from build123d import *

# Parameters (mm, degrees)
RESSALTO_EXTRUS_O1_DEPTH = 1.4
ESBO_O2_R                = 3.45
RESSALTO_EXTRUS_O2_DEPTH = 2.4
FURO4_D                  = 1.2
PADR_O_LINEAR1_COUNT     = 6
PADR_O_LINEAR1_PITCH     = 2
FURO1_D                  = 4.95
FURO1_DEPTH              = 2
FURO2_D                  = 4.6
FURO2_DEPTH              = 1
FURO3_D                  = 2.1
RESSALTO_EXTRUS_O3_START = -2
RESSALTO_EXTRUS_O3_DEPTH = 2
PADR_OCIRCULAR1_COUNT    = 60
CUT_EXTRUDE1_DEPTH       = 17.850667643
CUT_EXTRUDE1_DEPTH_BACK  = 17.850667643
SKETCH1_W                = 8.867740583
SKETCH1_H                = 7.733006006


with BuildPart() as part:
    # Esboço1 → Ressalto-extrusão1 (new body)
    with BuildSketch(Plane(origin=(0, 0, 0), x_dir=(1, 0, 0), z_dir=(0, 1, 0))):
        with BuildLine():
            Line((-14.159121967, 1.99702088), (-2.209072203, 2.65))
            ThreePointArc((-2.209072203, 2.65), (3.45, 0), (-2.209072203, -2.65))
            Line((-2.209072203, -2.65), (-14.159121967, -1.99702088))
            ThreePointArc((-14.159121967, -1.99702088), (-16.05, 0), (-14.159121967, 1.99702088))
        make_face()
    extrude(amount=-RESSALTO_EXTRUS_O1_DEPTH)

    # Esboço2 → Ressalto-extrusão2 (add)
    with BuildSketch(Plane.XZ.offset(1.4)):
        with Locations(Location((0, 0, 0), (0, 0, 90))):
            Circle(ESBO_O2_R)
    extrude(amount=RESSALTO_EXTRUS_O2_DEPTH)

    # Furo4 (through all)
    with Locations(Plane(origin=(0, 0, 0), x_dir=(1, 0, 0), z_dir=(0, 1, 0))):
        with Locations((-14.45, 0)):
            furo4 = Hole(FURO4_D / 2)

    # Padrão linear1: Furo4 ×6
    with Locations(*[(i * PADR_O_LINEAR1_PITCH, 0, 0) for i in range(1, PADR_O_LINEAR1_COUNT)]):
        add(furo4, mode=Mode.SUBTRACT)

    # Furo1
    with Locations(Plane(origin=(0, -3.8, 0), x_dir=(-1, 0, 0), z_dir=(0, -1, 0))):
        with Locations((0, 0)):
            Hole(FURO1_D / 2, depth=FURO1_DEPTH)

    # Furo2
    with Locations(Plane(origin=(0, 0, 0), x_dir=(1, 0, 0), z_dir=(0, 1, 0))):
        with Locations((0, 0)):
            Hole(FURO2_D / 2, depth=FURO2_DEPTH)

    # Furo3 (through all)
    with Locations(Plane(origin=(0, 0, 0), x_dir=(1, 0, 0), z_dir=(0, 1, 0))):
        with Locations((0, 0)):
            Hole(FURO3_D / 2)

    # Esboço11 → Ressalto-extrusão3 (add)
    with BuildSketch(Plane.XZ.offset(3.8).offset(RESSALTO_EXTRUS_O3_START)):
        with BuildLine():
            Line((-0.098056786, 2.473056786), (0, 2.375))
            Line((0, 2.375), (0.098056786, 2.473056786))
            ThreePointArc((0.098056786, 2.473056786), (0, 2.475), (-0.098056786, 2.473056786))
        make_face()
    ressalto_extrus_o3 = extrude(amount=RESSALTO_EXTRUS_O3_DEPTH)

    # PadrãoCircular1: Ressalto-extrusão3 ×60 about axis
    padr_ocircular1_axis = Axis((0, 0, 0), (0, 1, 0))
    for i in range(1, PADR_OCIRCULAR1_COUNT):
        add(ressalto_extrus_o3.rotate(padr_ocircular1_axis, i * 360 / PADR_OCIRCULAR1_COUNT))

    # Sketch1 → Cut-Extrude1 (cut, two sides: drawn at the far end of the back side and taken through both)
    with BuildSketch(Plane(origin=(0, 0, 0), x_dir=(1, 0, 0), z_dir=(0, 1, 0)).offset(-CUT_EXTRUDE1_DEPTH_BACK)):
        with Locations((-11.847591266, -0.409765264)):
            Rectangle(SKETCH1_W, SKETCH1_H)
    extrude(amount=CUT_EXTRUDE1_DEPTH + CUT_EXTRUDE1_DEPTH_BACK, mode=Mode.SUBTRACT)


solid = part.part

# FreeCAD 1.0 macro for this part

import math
import FreeCAD as App
import Part
import Sketcher

V = App.Vector

doc = App.newDocument("Part")
body = doc.addObject("PartDesign::Body", "Body")

# Sketch on XZ plane
sketch1 = body.newObject("Sketcher::SketchObject", "Sketch")
sketch1.AttachmentSupport = (doc.getObject("XZ_Plane"), [""])
sketch1.MapMode = "FlatFace"
sketch1.addGeometry([
    Part.LineSegment(V(-2.2, -2.6, 0), V(-14.2, -2, 0)),
    Part.ArcOfCircle(Part.Circle(V(-14.1, 0, 0), V(0, 0, 1), 2), math.radians(93), math.radians(267)),
    Part.LineSegment(V(-14.2, 2, 0), V(-2.2, 2.6, 0)),
    Part.ArcOfCircle(Part.Circle(V(0, 0, 0), V(0, 0, 1), 3.5), math.radians(-130), math.radians(130)),
], False)
sketch1.addConstraint([
    Sketcher.Constraint("Tangent", 0, 2, 1, 2),
    Sketcher.Constraint("Tangent", 1, 1, 2, 1),
    Sketcher.Constraint("Coincident", 2, 2, 3, 2),
    Sketcher.Constraint("Coincident", 3, 1, 0, 1),
    Sketcher.Constraint("Coincident", 3, 3, -1, 1),
    Sketcher.Constraint("Symmetric", 0, 2, 1, 1, -1),
    Sketcher.Constraint("Radius", 1, 2.0),
    Sketcher.Constraint("Radius", 3, 3.45),
    Sketcher.Constraint("DistanceY", 3, 1, 2, 2, 5.3),
    Sketcher.Constraint("DistanceX", 1, 3, -1, 1, 14.05),
])
pad1 = body.newObject("PartDesign::Pad", "Pad")
pad1.Profile = sketch1
pad1.Length = 1.4

# Sketch on XZ plane
sketch2 = body.newObject("Sketcher::SketchObject", "Sketch001")
sketch2.AttachmentSupport = (doc.getObject("XZ_Plane"), [""])
sketch2.MapMode = "FlatFace"
sketch2.AttachmentOffset = App.Placement(V(0, 0, 1.4), App.Rotation())
sketch2.addGeometry(Part.Circle(V(0, 0, 0), V(0, 0, 1), 3.5), False)
sketch2.addConstraint([
    Sketcher.Constraint("Coincident", 0, 3, -1, 1),
    Sketcher.Constraint("Diameter", 0, 6.9),
])
pad2 = body.newObject("PartDesign::Pad", "Pad001")
pad2.Profile = sketch2
pad2.Length = 2.4

# Sketch on XZ plane
sketch3 = body.newObject("Sketcher::SketchObject", "Sketch002")
sketch3.AttachmentSupport = (doc.getObject("XZ_Plane"), [""])
sketch3.MapMode = "FlatFace"
sketch3.addGeometry(Part.Circle(V(-14.4, 0, 0), V(0, 0, 1), 0.6), False)
sketch3.addConstraint([
    Sketcher.Constraint("PointOnObject", 0, 3, -1),
    Sketcher.Constraint("Diameter", 0, 1.2),
    Sketcher.Constraint("DistanceX", 0, 3, -1, 1, 14.45),
])
doc.recompute()
hole = body.newObject("PartDesign::Hole", "Hole")
hole.Profile = sketch3
hole.ThreadType = "None"
hole.Diameter = 1.2
hole.DepthType = "ThroughAll"
hole.Reversed = True
doc.recompute()

linearpattern = body.newObject("PartDesign::LinearPattern", "LinearPattern")
linearpattern.Originals = [hole]
linearpattern.Direction = (doc.getObject("X_Axis"), [""])
linearpattern.Mode = "offset"
linearpattern.Offset = 2
linearpattern.Occurrences = 6
body.Tip = linearpattern

# Sketch on XZ plane
sketch4 = body.newObject("Sketcher::SketchObject", "Sketch003")
sketch4.AttachmentSupport = (doc.getObject("XZ_Plane"), [""])
sketch4.MapMode = "FlatFace"
sketch4.AttachmentOffset = App.Placement(V(0, 0, 3.8), App.Rotation())
sketch4.addGeometry(Part.Circle(V(0, 0, 0), V(0, 0, 1), 2.5), False)
sketch4.addConstraint([
    Sketcher.Constraint("Coincident", 0, 3, -1, 1),
    Sketcher.Constraint("Diameter", 0, 4.95),
])
doc.recompute()
hole2 = body.newObject("PartDesign::Hole", "Hole001")
hole2.Profile = sketch4
hole2.ThreadType = "None"
hole2.Diameter = 4.95
hole2.DepthType = "Dimension"
hole2.Depth = 2
hole2.DrillPoint = "Flat"

# Sketch on XZ plane
sketch5 = body.newObject("Sketcher::SketchObject", "Sketch004")
sketch5.AttachmentSupport = (doc.getObject("XZ_Plane"), [""])
sketch5.MapMode = "FlatFace"
sketch5.addGeometry(Part.Circle(V(0, 0, 0), V(0, 0, 1), 2.3), False)
sketch5.addConstraint([
    Sketcher.Constraint("Coincident", 0, 3, -1, 1),
    Sketcher.Constraint("Diameter", 0, 4.6),
])
doc.recompute()
hole3 = body.newObject("PartDesign::Hole", "Hole002")
hole3.Profile = sketch5
hole3.ThreadType = "None"
hole3.Diameter = 4.6
hole3.DepthType = "Dimension"
hole3.Depth = 1
hole3.DrillPoint = "Flat"
hole3.Reversed = True

# Sketch on XZ plane
sketch6 = body.newObject("Sketcher::SketchObject", "Sketch005")
sketch6.AttachmentSupport = (doc.getObject("XZ_Plane"), [""])
sketch6.MapMode = "FlatFace"
sketch6.addGeometry(Part.Circle(V(0, 0, 0), V(0, 0, 1), 1.1), False)
sketch6.addConstraint([
    Sketcher.Constraint("Coincident", 0, 3, -1, 1),
    Sketcher.Constraint("Diameter", 0, 2.1),
])
doc.recompute()
hole4 = body.newObject("PartDesign::Hole", "Hole003")
hole4.Profile = sketch6
hole4.ThreadType = "None"
hole4.Diameter = 2.1
hole4.DepthType = "ThroughAll"
hole4.Reversed = True

# Sketch on XZ plane
sketch7 = body.newObject("Sketcher::SketchObject", "Sketch006")
sketch7.AttachmentSupport = (doc.getObject("XZ_Plane"), [""])
sketch7.MapMode = "FlatFace"
sketch7.AttachmentOffset = App.Placement(V(0, 0, 1.8), App.Rotation())
sketch7.addGeometry([
    Part.LineSegment(V(-0.1, 2.47, 0), V(0, 2.38, 0)),
    Part.LineSegment(V(0, 2.38, 0), V(0.1, 2.47, 0)),
    Part.ArcOfCircle(Part.Circle(V(0, 0, 0), V(0, 0, 1), 2.48), math.radians(87.73), math.radians(92.27)),
], False)
sketch7.addConstraint([
    Sketcher.Constraint("Coincident", 0, 2, 1, 1),
    Sketcher.Constraint("Coincident", 1, 2, 2, 1),
    Sketcher.Constraint("Coincident", 2, 2, 0, 1),
    Sketcher.Constraint("Coincident", 2, 3, -1, 1),
    Sketcher.Constraint("PointOnObject", 0, 2, -2),
    Sketcher.Constraint("Perpendicular", 0, 1),
    Sketcher.Constraint("Horizontal", 1, 2, 2, 2),
    Sketcher.Constraint("Radius", 2, 2.475),
    Sketcher.Constraint("DistanceY", -1, 1, 0, 2, 2.375),
])
pad3 = body.newObject("PartDesign::Pad", "Pad002")
pad3.Profile = sketch7
pad3.Length = 2
doc.recompute()

polarpattern = body.newObject("PartDesign::PolarPattern", "PolarPattern")
polarpattern.Originals = [pad3]
polarpattern.Axis = (doc.getObject("Y_Axis"), [""])
polarpattern.Angle = 360
polarpattern.Occurrences = 60
body.Tip = polarpattern

# Sketch on XZ plane
sketch8 = body.newObject("Sketcher::SketchObject", "Sketch007")
sketch8.AttachmentSupport = (doc.getObject("XZ_Plane"), [""])
sketch8.MapMode = "FlatFace"
sketch8.addGeometry([
    Part.LineSegment(V(-16, -3, 0), V(-16, 4, 0)),
    Part.LineSegment(V(-16, 4, 0), V(-7, 4, 0)),
    Part.LineSegment(V(-7, 4, 0), V(-7, -3, 0)),
    Part.LineSegment(V(-7, -3, 0), V(-16, -3, 0)),
], False)
sketch8.addConstraint([
    Sketcher.Constraint("Coincident", 0, 2, 1, 1),
    Sketcher.Constraint("Coincident", 1, 2, 2, 1),
    Sketcher.Constraint("Coincident", 2, 2, 3, 1),
    Sketcher.Constraint("Coincident", 3, 2, 0, 1),
    Sketcher.Constraint("Vertical", 0),
    Sketcher.Constraint("Horizontal", 1),
    Sketcher.Constraint("Vertical", 2),
    Sketcher.Constraint("Horizontal", 3),
    Sketcher.Constraint("DistanceX", 1, 1, 1, 2, 8.867741),
    Sketcher.Constraint("DistanceY", 0, 1, 0, 2, 7.733006),
    Sketcher.Constraint("DistanceX", 0, 2, -1, 1, 16.281462),
    Sketcher.Constraint("DistanceY", -1, 1, 0, 2, 4.276268),
])
pocket1 = body.newObject("PartDesign::Pocket", "Pocket")
pocket1.Profile = sketch8
pocket1.Type = "ThroughAll"
pocket1.Midplane = True

doc.recompute()
